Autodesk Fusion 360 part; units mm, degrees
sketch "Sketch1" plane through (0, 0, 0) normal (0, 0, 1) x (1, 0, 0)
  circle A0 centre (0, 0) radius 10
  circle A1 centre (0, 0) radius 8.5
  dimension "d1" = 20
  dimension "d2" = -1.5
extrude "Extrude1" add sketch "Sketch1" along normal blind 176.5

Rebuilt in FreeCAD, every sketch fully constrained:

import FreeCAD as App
import Part
import Sketcher

doc = App.newDocument("Part")
body = doc.addObject("PartDesign::Body", "Body")

# Sketch on XY plane
sketch1 = body.newObject("Sketcher::SketchObject", "Sketch")
sketch1.AttachmentSupport = (doc.getObject("XY_Plane"), [""])
sketch1.MapMode = "FlatFace"
sketch1.addGeometry([
    Part.Circle(App.Vector(0, 0, 0), App.Vector(0, 0, 1), 10),
    Part.Circle(App.Vector(0, 0, 0), App.Vector(0, 0, 1), 8.5),
], False)
sketch1.addConstraint([
    Sketcher.Constraint("Coincident", 0, 3, -1, 1),
    Sketcher.Constraint("Coincident", 1, 3, -1, 1),
    Sketcher.Constraint("Diameter", 0, 20.0),
    Sketcher.Constraint("Diameter", 1, 17.0),
])
pad1 = body.newObject("PartDesign::Pad", "Pad")
pad1.Profile = sketch1
pad1.Length = 176.5

doc.recompute()
